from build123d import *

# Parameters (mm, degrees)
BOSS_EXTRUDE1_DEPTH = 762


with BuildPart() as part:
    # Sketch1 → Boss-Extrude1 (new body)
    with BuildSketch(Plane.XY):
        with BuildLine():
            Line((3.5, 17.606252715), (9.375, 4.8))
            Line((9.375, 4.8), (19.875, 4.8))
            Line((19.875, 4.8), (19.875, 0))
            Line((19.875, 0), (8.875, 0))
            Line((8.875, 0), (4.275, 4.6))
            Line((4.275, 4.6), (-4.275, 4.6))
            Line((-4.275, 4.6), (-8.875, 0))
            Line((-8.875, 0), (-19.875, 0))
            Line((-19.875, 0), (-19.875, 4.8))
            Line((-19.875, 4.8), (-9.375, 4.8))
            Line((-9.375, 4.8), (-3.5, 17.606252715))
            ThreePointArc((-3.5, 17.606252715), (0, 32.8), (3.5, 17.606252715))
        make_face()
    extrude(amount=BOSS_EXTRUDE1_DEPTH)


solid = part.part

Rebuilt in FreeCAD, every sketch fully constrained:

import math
import FreeCAD as App
import Part
import Sketcher
Q = App.Units.Quantity

doc = App.newDocument("Part")
body = doc.addObject("PartDesign::Body", "Body")

sketch1 = body.newObject("Sketcher::SketchObject", "Sketch")
sketch1.AttachmentSupport = (doc.getObject("XY_Plane"), [""])
sketch1.MapMode = "FlatFace"
sketch1.addGeometry([
    Part.LineSegment(App.Vector(9.375, 4.8, 0), App.Vector(3.5, 17.606253, 0)),
    Part.ArcOfCircle(Part.Circle(App.Vector(0, 24.8, 0), App.Vector(0, 0, 1), 8), math.radians(-64.05552), math.radians(244.05552)),
    Part.LineSegment(App.Vector(-3.5, 17.606253, 0), App.Vector(-9.375, 4.8, 0)),
    Part.LineSegment(App.Vector(-9.375, 4.8, 0), App.Vector(-19.875, 4.8, 0)),
    Part.LineSegment(App.Vector(-19.875, 4.8, 0), App.Vector(-19.875, 0, 0)),
    Part.LineSegment(App.Vector(-19.875, 0, 0), App.Vector(-8.875, 0, 0)),
    Part.LineSegment(App.Vector(-8.875, 0, 0), App.Vector(-4.275, 4.6, 0)),
    Part.LineSegment(App.Vector(-4.275, 4.6, 0), App.Vector(4.275, 4.6, 0)),
    Part.LineSegment(App.Vector(4.275, 4.6, 0), App.Vector(8.875, 0, 0)),
    Part.LineSegment(App.Vector(8.875, 0, 0), App.Vector(19.875, 0, 0)),
    Part.LineSegment(App.Vector(19.875, 0, 0), App.Vector(19.875, 4.8, 0)),
    Part.LineSegment(App.Vector(19.875, 4.8, 0), App.Vector(9.375, 4.8, 0)),
], False)
sketch1.addConstraint([
    Sketcher.Constraint("Coincident", 0, 2, 1, 1),
    Sketcher.Constraint("Coincident", 1, 2, 2, 1),
    Sketcher.Constraint("Coincident", 2, 2, 3, 1),
    Sketcher.Constraint("Coincident", 3, 2, 4, 1),
    Sketcher.Constraint("Coincident", 4, 2, 5, 1),
    Sketcher.Constraint("Coincident", 5, 2, 6, 1),
    Sketcher.Constraint("Coincident", 6, 2, 7, 1),
    Sketcher.Constraint("Coincident", 7, 2, 8, 1),
    Sketcher.Constraint("Coincident", 8, 2, 9, 1),
    Sketcher.Constraint("Coincident", 9, 2, 10, 1),
    Sketcher.Constraint("Coincident", 10, 2, 11, 1),
    Sketcher.Constraint("Coincident", 11, 2, 0, 1),
    Sketcher.Constraint("Horizontal", 3),
    Sketcher.Constraint("Vertical", 4),
    Sketcher.Constraint("Horizontal", 5),
    Sketcher.Constraint("Horizontal", 7),
    Sketcher.Constraint("Horizontal", 9),
    Sketcher.Constraint("Vertical", 10),
    Sketcher.Constraint("Horizontal", 11),
    Sketcher.Constraint("Symmetric", 5, 2, 8, 2, -1, 1),
    Sketcher.Constraint("Symmetric", 0, 2, 1, 2, -2),
    Sketcher.Constraint("Symmetric", 4, 2, 9, 2, -2),
    Sketcher.Constraint("Symmetric", 2, 2, 11, 2, -2),
    Sketcher.Constraint("Perpendicular", 6, 8),
    Sketcher.Constraint("Equal", 6, 8),
    Sketcher.Constraint("Radius", 1, Q("8 mm")),
    Sketcher.Constraint("DistanceX", 5, 1, 5, 2, Q("11 mm")),
    Sketcher.Constraint("DistanceX", 3, 2, 3, 1, Q("10.5 mm")),
    Sketcher.Constraint("DistanceY", 4, 2, 4, 1, Q("4.8 mm")),
    Sketcher.Constraint("DistanceX", 1, 2, 0, 2, Q("7 mm")),
    Sketcher.Constraint("DistanceY", 2, 2, 1, 3, Q("20 mm")),
    Sketcher.Constraint("DistanceX", 7, 1, 7, 2, Q("8.55 mm")),
    Sketcher.Constraint("DistanceY", -1, 1, 6, 2, Q("4.6 mm")),
])
pad1 = body.newObject("PartDesign::Pad", "Pad")
pad1.Profile = sketch1
pad1.Length = 762

doc.recompute()
